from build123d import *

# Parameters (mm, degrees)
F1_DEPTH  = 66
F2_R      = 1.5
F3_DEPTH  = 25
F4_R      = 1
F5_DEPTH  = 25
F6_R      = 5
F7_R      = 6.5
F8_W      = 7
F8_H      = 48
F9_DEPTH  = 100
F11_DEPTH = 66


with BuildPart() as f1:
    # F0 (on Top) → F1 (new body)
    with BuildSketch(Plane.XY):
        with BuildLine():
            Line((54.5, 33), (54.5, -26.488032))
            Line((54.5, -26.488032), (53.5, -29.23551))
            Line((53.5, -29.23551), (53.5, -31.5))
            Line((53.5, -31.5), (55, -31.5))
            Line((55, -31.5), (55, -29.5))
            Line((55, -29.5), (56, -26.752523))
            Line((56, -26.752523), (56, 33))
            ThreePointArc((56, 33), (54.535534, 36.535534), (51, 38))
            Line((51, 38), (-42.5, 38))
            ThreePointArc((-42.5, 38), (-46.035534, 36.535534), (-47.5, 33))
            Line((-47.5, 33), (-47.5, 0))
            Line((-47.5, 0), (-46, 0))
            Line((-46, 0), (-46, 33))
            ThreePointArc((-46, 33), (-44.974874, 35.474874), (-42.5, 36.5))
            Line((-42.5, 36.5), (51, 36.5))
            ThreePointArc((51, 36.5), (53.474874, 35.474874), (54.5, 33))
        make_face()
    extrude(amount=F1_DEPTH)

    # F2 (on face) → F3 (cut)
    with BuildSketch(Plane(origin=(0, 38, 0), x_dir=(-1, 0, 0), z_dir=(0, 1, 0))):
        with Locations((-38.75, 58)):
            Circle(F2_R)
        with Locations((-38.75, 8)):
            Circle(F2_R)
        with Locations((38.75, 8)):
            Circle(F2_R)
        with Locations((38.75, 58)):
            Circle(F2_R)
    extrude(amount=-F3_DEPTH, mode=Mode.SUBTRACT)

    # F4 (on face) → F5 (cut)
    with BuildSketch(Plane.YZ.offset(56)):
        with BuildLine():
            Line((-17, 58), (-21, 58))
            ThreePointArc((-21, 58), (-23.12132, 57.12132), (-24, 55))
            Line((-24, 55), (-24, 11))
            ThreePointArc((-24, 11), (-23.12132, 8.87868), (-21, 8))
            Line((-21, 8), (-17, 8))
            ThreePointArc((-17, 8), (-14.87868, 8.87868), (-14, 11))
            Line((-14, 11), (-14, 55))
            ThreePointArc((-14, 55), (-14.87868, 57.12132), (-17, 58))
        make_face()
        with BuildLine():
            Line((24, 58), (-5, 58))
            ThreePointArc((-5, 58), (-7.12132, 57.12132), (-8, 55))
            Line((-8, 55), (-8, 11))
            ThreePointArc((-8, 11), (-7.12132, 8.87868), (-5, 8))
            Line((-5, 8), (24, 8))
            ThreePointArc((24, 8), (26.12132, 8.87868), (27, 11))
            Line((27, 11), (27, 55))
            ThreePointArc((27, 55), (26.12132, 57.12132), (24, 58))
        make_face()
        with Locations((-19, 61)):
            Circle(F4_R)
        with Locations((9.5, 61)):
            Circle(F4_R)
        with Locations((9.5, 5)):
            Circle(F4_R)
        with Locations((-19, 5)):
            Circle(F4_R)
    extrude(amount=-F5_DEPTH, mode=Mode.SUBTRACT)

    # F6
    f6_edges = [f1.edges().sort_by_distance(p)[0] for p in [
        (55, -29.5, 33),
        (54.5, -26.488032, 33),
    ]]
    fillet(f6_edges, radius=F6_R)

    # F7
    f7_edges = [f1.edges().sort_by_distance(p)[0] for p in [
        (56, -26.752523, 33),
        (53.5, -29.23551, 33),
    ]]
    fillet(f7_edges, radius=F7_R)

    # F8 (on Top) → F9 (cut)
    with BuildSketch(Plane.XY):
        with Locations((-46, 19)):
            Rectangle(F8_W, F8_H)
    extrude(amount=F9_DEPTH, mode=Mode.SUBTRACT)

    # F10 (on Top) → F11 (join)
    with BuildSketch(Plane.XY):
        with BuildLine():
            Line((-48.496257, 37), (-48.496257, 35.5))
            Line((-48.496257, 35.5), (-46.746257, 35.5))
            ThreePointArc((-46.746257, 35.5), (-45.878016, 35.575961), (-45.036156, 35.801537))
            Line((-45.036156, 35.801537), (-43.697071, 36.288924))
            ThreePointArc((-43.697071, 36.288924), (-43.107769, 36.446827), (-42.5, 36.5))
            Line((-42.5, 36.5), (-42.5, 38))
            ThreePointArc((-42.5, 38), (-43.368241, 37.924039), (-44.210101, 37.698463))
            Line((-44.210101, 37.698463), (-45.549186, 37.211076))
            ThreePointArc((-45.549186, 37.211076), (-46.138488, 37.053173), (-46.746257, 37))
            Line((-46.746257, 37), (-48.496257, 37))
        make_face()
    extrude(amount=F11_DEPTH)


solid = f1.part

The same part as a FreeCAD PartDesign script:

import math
import FreeCAD as App
import Part
import Sketcher
from FreeCAD import Vector
Q = App.Units.Quantity


def edges_at(feature, points):
    """Names of the edges that pass closest to the given points."""
    edges = feature.Shape.Edges
    near = lambda p: min(range(len(edges)), key=lambda i: edges[i].distToShape(Part.Vertex(*p))[0])
    return sorted({f"Edge{near(p) + 1}" for p in points})

doc = App.newDocument("Part")
body = doc.addObject("PartDesign::Body", "Body")

sketch1 = doc.addObject("Sketcher::SketchObject", "Sketch")
body.addObject(sketch1)
sketch1.AttachmentSupport = (doc.XY_Plane, [""])
sketch1.MapMode = "FlatFace"
sketch1.addGeometry([
    Part.LineSegment(Vector(54.5, 33, 0), Vector(54.5, -26.5, 0)),
    Part.LineSegment(Vector(54.5, -26.5, 0), Vector(53.5, -29.2, 0)),
    Part.LineSegment(Vector(53.5, -29.2, 0), Vector(53.5, -31.5, 0)),
    Part.LineSegment(Vector(53.5, -31.5, 0), Vector(55, -31.5, 0)),
    Part.LineSegment(Vector(55, -31.5, 0), Vector(55, -29.5, 0)),
    Part.LineSegment(Vector(55, -29.5, 0), Vector(56, -26.8, 0)),
    Part.LineSegment(Vector(56, -26.8, 0), Vector(56, 33, 0)),
    Part.ArcOfCircle(Part.Circle(Vector(51, 33, 0), Vector(0, 0, 1), 5), math.radians(0), math.radians(90)),
    Part.LineSegment(Vector(51, 38, 0), Vector(-42.5, 38, 0)),
    Part.ArcOfCircle(Part.Circle(Vector(-42.5, 33, 0), Vector(0, 0, 1), 5), math.radians(90), math.radians(180)),
    Part.LineSegment(Vector(-47.5, 33, 0), Vector(-47.5, 0, 0)),
    Part.LineSegment(Vector(-47.5, 0, 0), Vector(-46, 0, 0)),
    Part.LineSegment(Vector(-46, 0, 0), Vector(-46, 33, 0)),
    Part.ArcOfCircle(Part.Circle(Vector(-42.5, 33, 0), Vector(0, 0, 1), 3.5), math.radians(90), math.radians(180)),
    Part.LineSegment(Vector(-42.5, 36.5, 0), Vector(51, 36.5, 0)),
    Part.ArcOfCircle(Part.Circle(Vector(51, 33, 0), Vector(0, 0, 1), 3.5), math.radians(0), math.radians(90)),
], False)
sketch1.addConstraint([
    Sketcher.Constraint("Coincident", 0, 2, 1, 1),
    Sketcher.Constraint("Coincident", 1, 2, 2, 1),
    Sketcher.Constraint("Coincident", 2, 2, 3, 1),
    Sketcher.Constraint("Coincident", 3, 2, 4, 1),
    Sketcher.Constraint("Coincident", 4, 2, 5, 1),
    Sketcher.Constraint("Coincident", 5, 2, 6, 1),
    Sketcher.Constraint("Tangent", 6, 2, 7, 1),
    Sketcher.Constraint("Tangent", 7, 2, 8, 1),
    Sketcher.Constraint("Tangent", 8, 2, 9, 1),
    Sketcher.Constraint("Tangent", 9, 2, 10, 1),
    Sketcher.Constraint("Coincident", 10, 2, 11, 1),
    Sketcher.Constraint("Coincident", 11, 2, 12, 1),
    Sketcher.Constraint("Tangent", 12, 2, 13, 2),
    Sketcher.Constraint("Tangent", 13, 1, 14, 1),
    Sketcher.Constraint("Tangent", 14, 2, 15, 2),
    Sketcher.Constraint("Tangent", 15, 1, 0, 1),
    Sketcher.Constraint("Vertical", 0),
    Sketcher.Constraint("Vertical", 2),
    Sketcher.Constraint("Horizontal", 3),
    Sketcher.Constraint("Vertical", 4),
    Sketcher.Constraint("Vertical", 6),
    Sketcher.Constraint("Horizontal", 8),
    Sketcher.Constraint("Vertical", 10),
    Sketcher.Constraint("Horizontal", 11),
    Sketcher.Constraint("Vertical", 12),
    Sketcher.Constraint("Horizontal", 14),
    Sketcher.Constraint("Coincident", 13, 3, 9, 3),
    Sketcher.Constraint("Coincident", 15, 3, 7, 3),
    Sketcher.Constraint("Equal", 7, 9),
    Sketcher.Constraint("PointOnObject", 10, 2, -1),
    Sketcher.Constraint("Parallel", 1, 5),
    Sketcher.Constraint("Equal", 3, 11),
    Sketcher.Constraint("Radius", 7, 5.0),
    Sketcher.Constraint("Radius", 13, 3.499999),
    Sketcher.Constraint("DistanceY", 4, 1, 4, 2, 2.0),
    Sketcher.Constraint("DistanceY", 10, 2, 10, 1, 33.0),
    Sketcher.Constraint("Angle", 1, Q("-109.999996 deg")),
    Sketcher.Constraint("DistanceX", 8, 2, 8, 1, 93.5),
    Sketcher.Constraint("DistanceX", -1, 1, 7, 3, 51.0),
    Sketcher.Constraint("DistanceX", -1, 1, 3, 2, 55.0),
    Sketcher.Constraint("DistanceY", 2, 2, -1, 1, 31.5),
    Sketcher.Constraint("DistanceY", 2, 2, 2, 1, 2.26449),
])
pad1 = doc.addObject("PartDesign::Pad", "Pad")
body.addObject(pad1)
pad1.Profile = sketch1
pad1.Length = 66

sketch2 = doc.addObject("Sketcher::SketchObject", "Sketch001")
body.addObject(sketch2)
sketch2.AttachmentSupport = (doc.XZ_Plane, [""])
sketch2.MapMode = "FlatFace"
sketch2.AttachmentOffset = App.Placement(Vector(0, 0, -38), App.Rotation())
sketch2.addGeometry([
    Part.Circle(Vector(38.8, 58, 0), Vector(0, 0, 1), 1.5),
    Part.Circle(Vector(38.8, 8, 0), Vector(0, 0, 1), 1.5),
    Part.Circle(Vector(-38.8, 8, 0), Vector(0, 0, 1), 1.5),
    Part.Circle(Vector(-38.8, 58, 0), Vector(0, 0, 1), 1.5),
], False)
sketch2.addConstraint([
    Sketcher.Constraint("Equal", 0, 1),
    Sketcher.Constraint("Equal", 1, 2),
    Sketcher.Constraint("Equal", 2, 3),
    Sketcher.Constraint("Symmetric", 1, 3, 2, 3, -2),
    Sketcher.Constraint("Symmetric", 0, 3, 3, 3, -2),
    Sketcher.Constraint("Vertical", 0, 3, 1, 3),
    Sketcher.Constraint("Diameter", 0, 3.0),
    Sketcher.Constraint("DistanceY", -1, 1, 0, 3, 58.0),
    Sketcher.Constraint("DistanceY", -1, 1, 1, 3, 8.0),
    Sketcher.Constraint("DistanceX", 2, 3, 1, 3, 77.5),
])
pocket1 = doc.addObject("PartDesign::Pocket", "Pocket")
body.addObject(pocket1)
pocket1.Profile = sketch2
pocket1.Length = 25
pocket1.Reversed = True

sketch3 = doc.addObject("Sketcher::SketchObject", "Sketch002")
body.addObject(sketch3)
sketch3.AttachmentSupport = (doc.YZ_Plane, [""])
sketch3.MapMode = "FlatFace"
sketch3.AttachmentOffset = App.Placement(Vector(0, 0, 56), App.Rotation())
sketch3.addGeometry([
    Part.LineSegment(Vector(-17, 58, 0), Vector(-21, 58, 0)),
    Part.ArcOfCircle(Part.Circle(Vector(-21, 55, 0), Vector(0, 0, 1), 3), math.radians(90), math.radians(180)),
    Part.LineSegment(Vector(-24, 55, 0), Vector(-24, 11, 0)),
    Part.ArcOfCircle(Part.Circle(Vector(-21, 11, 0), Vector(0, 0, 1), 3), math.radians(-180), math.radians(-90)),
    Part.LineSegment(Vector(-21, 8, 0), Vector(-17, 8, 0)),
    Part.ArcOfCircle(Part.Circle(Vector(-17, 11, 0), Vector(0, 0, 1), 3), math.radians(-90), math.radians(0)),
    Part.LineSegment(Vector(-14, 11, 0), Vector(-14, 55, 0)),
    Part.ArcOfCircle(Part.Circle(Vector(-17, 55, 0), Vector(0, 0, 1), 3), math.radians(0), math.radians(90)),
    Part.LineSegment(Vector(24, 58, 0), Vector(-5, 58, 0)),
    Part.ArcOfCircle(Part.Circle(Vector(-5, 55, 0), Vector(0, 0, 1), 3), math.radians(90), math.radians(180)),
    Part.LineSegment(Vector(-8, 55, 0), Vector(-8, 11, 0)),
    Part.ArcOfCircle(Part.Circle(Vector(-5, 11, 0), Vector(0, 0, 1), 3), math.radians(-180), math.radians(-90)),
    Part.LineSegment(Vector(-5, 8, 0), Vector(24, 8, 0)),
    Part.ArcOfCircle(Part.Circle(Vector(24, 11, 0), Vector(0, 0, 1), 3), math.radians(-90), math.radians(0)),
    Part.LineSegment(Vector(27, 11, 0), Vector(27, 55, 0)),
    Part.ArcOfCircle(Part.Circle(Vector(24, 55, 0), Vector(0, 0, 1), 3), math.radians(0), math.radians(90)),
    Part.Circle(Vector(-19, 61, 0), Vector(0, 0, 1), 1),
    Part.Circle(Vector(9.5, 61, 0), Vector(0, 0, 1), 1),
    Part.Circle(Vector(9.5, 5, 0), Vector(0, 0, 1), 1),
    Part.Circle(Vector(-19, 5, 0), Vector(0, 0, 1), 1),
], False)
sketch3.addConstraint([
    Sketcher.Constraint("Tangent", 0, 2, 1, 1),
    Sketcher.Constraint("Tangent", 1, 2, 2, 1),
    Sketcher.Constraint("Tangent", 2, 2, 3, 1),
    Sketcher.Constraint("Tangent", 3, 2, 4, 1),
    Sketcher.Constraint("Tangent", 4, 2, 5, 1),
    Sketcher.Constraint("Tangent", 5, 2, 6, 1),
    Sketcher.Constraint("Tangent", 6, 2, 7, 1),
    Sketcher.Constraint("Tangent", 7, 2, 0, 1),
    Sketcher.Constraint("Tangent", 8, 2, 9, 1),
    Sketcher.Constraint("Tangent", 9, 2, 10, 1),
    Sketcher.Constraint("Tangent", 10, 2, 11, 1),
    Sketcher.Constraint("Tangent", 11, 2, 12, 1),
    Sketcher.Constraint("Tangent", 12, 2, 13, 1),
    Sketcher.Constraint("Tangent", 13, 2, 14, 1),
    Sketcher.Constraint("Tangent", 14, 2, 15, 1),
    Sketcher.Constraint("Tangent", 15, 2, 8, 1),
    Sketcher.Constraint("Horizontal", 0),
    Sketcher.Constraint("Vertical", 2),
    Sketcher.Constraint("Horizontal", 4),
    Sketcher.Constraint("Vertical", 6),
    Sketcher.Constraint("Horizontal", 8),
    Sketcher.Constraint("Vertical", 10),
    Sketcher.Constraint("Horizontal", 12),
    Sketcher.Constraint("Vertical", 14),
    Sketcher.Constraint("Equal", 1, 3),
    Sketcher.Constraint("Equal", 3, 5),
    Sketcher.Constraint("Equal", 5, 7),
    Sketcher.Constraint("Equal", 7, 9),
    Sketcher.Constraint("Equal", 9, 11),
    Sketcher.Constraint("Equal", 11, 13),
    Sketcher.Constraint("Equal", 13, 15),
    Sketcher.Constraint("Equal", 16, 17),
    Sketcher.Constraint("Equal", 17, 18),
    Sketcher.Constraint("Equal", 18, 19),
    Sketcher.Constraint("Horizontal", 7, 3, 9, 3),
    Sketcher.Constraint("Horizontal", 5, 3, 11, 3),
    Sketcher.Constraint("Horizontal", 16, 3, 17, 3),
    Sketcher.Constraint("Horizontal", 18, 3, 19, 3),
    Sketcher.Constraint("Vertical", 17, 3, 18, 3),
    Sketcher.Constraint("Vertical", 16, 3, 19, 3),
    Sketcher.Constraint("Diameter", 16, 2.0),
    Sketcher.Constraint("Radius", 1, 3.000001),
    Sketcher.Constraint("DistanceX", 0, 2, 0, 1, 4.0),
    Sketcher.Constraint("DistanceX", 8, 2, 8, 1, 29.0),
    Sketcher.Constraint("DistanceY", 2, 2, 2, 1, 44.0),
    Sketcher.Constraint("DistanceX", 1, 3, -1, 1, 20.999999),
    Sketcher.Constraint("DistanceY", -1, 1, 1, 3, 54.999999),
    Sketcher.Constraint("DistanceX", 9, 3, -1, 1, 4.999999),
    Sketcher.Constraint("DistanceX", 16, 3, -1, 1, 19.0),
    Sketcher.Constraint("DistanceY", -1, 1, 16, 3, 61.0),
    Sketcher.Constraint("DistanceY", -1, 1, 18, 3, 5.0),
    Sketcher.Constraint("DistanceX", -1, 1, 17, 3, 9.5),
])
pocket2 = doc.addObject("PartDesign::Pocket", "Pocket001")
body.addObject(pocket2)
pocket2.Profile = sketch3
pocket2.Length = 25
doc.recompute()

fillet = doc.addObject("PartDesign::Fillet", "Fillet")
body.addObject(fillet)
fillet.Base = (pocket2, edges_at(pocket2, [(55, -29.5, 33), (54.5, -26.488, 33)]))
fillet.Radius = 5
doc.recompute()

fillet2 = doc.addObject("PartDesign::Fillet", "Fillet001")
body.addObject(fillet2)
fillet2.Base = (fillet, edges_at(fillet, [(56, -26.753, 33), (53.5, -29.236, 33)]))
fillet2.Radius = 6.5

sketch4 = doc.addObject("Sketcher::SketchObject", "Sketch003")
body.addObject(sketch4)
sketch4.AttachmentSupport = (doc.XY_Plane, [""])
sketch4.MapMode = "FlatFace"
sketch4.addGeometry([
    Part.LineSegment(Vector(-50, 43, 0), Vector(-50, -5, 0)),
    Part.LineSegment(Vector(-50, -5, 0), Vector(-42, -5, 0)),
    Part.LineSegment(Vector(-42, -5, 0), Vector(-42, 43, 0)),
    Part.LineSegment(Vector(-42, 43, 0), Vector(-50, 43, 0)),
], False)
sketch4.addConstraint([
    Sketcher.Constraint("Coincident", 0, 2, 1, 1),
    Sketcher.Constraint("Coincident", 1, 2, 2, 1),
    Sketcher.Constraint("Coincident", 2, 2, 3, 1),
    Sketcher.Constraint("Coincident", 3, 2, 0, 1),
    Sketcher.Constraint("Vertical", 0),
    Sketcher.Constraint("Horizontal", 1),
    Sketcher.Constraint("Vertical", 2),
    Sketcher.Constraint("Horizontal", 3),
    Sketcher.Constraint("DistanceX", 1, 1, 1, 2, 7.0),
    Sketcher.Constraint("DistanceY", 0, 2, 0, 1, 48.0),
    Sketcher.Constraint("DistanceY", 0, 2, -1, 1, 5.0),
    Sketcher.Constraint("DistanceX", 0, 2, -1, 1, 49.5),
])
pocket3 = doc.addObject("PartDesign::Pocket", "Pocket002")
body.addObject(pocket3)
pocket3.Profile = sketch4
pocket3.Length = 100
pocket3.Reversed = True

sketch5 = doc.addObject("Sketcher::SketchObject", "Sketch004")
body.addObject(sketch5)
sketch5.AttachmentSupport = (doc.XY_Plane, [""])
sketch5.MapMode = "FlatFace"
sketch5.addGeometry([
    Part.LineSegment(Vector(-48.5, 37, 0), Vector(-48.5, 35.5, 0)),
    Part.LineSegment(Vector(-48.5, 35.5, 0), Vector(-46.7, 35.5, 0)),
    Part.ArcOfCircle(Part.Circle(Vector(-46.7, 40.5, 0), Vector(0, 0, 1), 5), math.radians(-90), math.radians(-70)),
    Part.LineSegment(Vector(-45, 35.8, 0), Vector(-43.7, 36.3, 0)),
    Part.ArcOfCircle(Part.Circle(Vector(-42.5, 33, 0), Vector(0, 0, 1), 3.5), math.radians(90), math.radians(110)),
    Part.LineSegment(Vector(-42.5, 36.5, 0), Vector(-42.5, 38, 0)),
    Part.ArcOfCircle(Part.Circle(Vector(-42.5, 33, 0), Vector(0, 0, 1), 5), math.radians(90), math.radians(110)),
    Part.LineSegment(Vector(-44.2, 37.7, 0), Vector(-45.5, 37.2, 0)),
    Part.ArcOfCircle(Part.Circle(Vector(-46.7, 40.5, 0), Vector(0, 0, 1), 3.5), math.radians(-90), math.radians(-70)),
    Part.LineSegment(Vector(-46.7, 37, 0), Vector(-48.5, 37, 0)),
], False)
sketch5.addConstraint([
    Sketcher.Constraint("Coincident", 0, 2, 1, 1),
    Sketcher.Constraint("Tangent", 1, 2, 2, 1),
    Sketcher.Constraint("Tangent", 2, 2, 3, 1),
    Sketcher.Constraint("Tangent", 3, 2, 4, 2),
    Sketcher.Constraint("Coincident", 4, 1, 5, 1),
    Sketcher.Constraint("Coincident", 5, 2, 6, 1),
    Sketcher.Constraint("Tangent", 6, 2, 7, 1),
    Sketcher.Constraint("Tangent", 7, 2, 8, 2),
    Sketcher.Constraint("Tangent", 8, 1, 9, 1),
    Sketcher.Constraint("Coincident", 9, 2, 0, 1),
    Sketcher.Constraint("Vertical", 0),
    Sketcher.Constraint("Horizontal", 1),
    Sketcher.Constraint("Vertical", 5),
    Sketcher.Constraint("Horizontal", 9),
    Sketcher.Constraint("Equal", 2, 6),
    Sketcher.Constraint("Equal", 4, 8),
    Sketcher.Constraint("Parallel", 3, 7),
    Sketcher.Constraint("Vertical", 8, 3, 1, 2),
    Sketcher.Constraint("Equal", 0, 5),
    Sketcher.Constraint("Angle", 3, Q("19.999997 deg")),
    Sketcher.Constraint("DistanceY", 0, 2, 0, 1, 1.5),
    Sketcher.Constraint("DistanceY", -1, 1, 5, 2, 38.0),
    Sketcher.Constraint("DistanceY", -1, 1, 8, 1, 37.0),
    Sketcher.Constraint("DistanceX", 1, 1, 1, 2, 1.75),
    Sketcher.Constraint("DistanceX", 4, 3, -1, 1, 42.499999),
    Sketcher.Constraint("DistanceX", 4, 1, -1, 1, 42.5),
    Sketcher.Constraint("Radius", 2, 4.999984),
    Sketcher.Constraint("Radius", 4, 3.500005),
])
pad2 = doc.addObject("PartDesign::Pad", "Pad001")
body.addObject(pad2)
pad2.Profile = sketch5
pad2.Length = 66

doc.recompute()
